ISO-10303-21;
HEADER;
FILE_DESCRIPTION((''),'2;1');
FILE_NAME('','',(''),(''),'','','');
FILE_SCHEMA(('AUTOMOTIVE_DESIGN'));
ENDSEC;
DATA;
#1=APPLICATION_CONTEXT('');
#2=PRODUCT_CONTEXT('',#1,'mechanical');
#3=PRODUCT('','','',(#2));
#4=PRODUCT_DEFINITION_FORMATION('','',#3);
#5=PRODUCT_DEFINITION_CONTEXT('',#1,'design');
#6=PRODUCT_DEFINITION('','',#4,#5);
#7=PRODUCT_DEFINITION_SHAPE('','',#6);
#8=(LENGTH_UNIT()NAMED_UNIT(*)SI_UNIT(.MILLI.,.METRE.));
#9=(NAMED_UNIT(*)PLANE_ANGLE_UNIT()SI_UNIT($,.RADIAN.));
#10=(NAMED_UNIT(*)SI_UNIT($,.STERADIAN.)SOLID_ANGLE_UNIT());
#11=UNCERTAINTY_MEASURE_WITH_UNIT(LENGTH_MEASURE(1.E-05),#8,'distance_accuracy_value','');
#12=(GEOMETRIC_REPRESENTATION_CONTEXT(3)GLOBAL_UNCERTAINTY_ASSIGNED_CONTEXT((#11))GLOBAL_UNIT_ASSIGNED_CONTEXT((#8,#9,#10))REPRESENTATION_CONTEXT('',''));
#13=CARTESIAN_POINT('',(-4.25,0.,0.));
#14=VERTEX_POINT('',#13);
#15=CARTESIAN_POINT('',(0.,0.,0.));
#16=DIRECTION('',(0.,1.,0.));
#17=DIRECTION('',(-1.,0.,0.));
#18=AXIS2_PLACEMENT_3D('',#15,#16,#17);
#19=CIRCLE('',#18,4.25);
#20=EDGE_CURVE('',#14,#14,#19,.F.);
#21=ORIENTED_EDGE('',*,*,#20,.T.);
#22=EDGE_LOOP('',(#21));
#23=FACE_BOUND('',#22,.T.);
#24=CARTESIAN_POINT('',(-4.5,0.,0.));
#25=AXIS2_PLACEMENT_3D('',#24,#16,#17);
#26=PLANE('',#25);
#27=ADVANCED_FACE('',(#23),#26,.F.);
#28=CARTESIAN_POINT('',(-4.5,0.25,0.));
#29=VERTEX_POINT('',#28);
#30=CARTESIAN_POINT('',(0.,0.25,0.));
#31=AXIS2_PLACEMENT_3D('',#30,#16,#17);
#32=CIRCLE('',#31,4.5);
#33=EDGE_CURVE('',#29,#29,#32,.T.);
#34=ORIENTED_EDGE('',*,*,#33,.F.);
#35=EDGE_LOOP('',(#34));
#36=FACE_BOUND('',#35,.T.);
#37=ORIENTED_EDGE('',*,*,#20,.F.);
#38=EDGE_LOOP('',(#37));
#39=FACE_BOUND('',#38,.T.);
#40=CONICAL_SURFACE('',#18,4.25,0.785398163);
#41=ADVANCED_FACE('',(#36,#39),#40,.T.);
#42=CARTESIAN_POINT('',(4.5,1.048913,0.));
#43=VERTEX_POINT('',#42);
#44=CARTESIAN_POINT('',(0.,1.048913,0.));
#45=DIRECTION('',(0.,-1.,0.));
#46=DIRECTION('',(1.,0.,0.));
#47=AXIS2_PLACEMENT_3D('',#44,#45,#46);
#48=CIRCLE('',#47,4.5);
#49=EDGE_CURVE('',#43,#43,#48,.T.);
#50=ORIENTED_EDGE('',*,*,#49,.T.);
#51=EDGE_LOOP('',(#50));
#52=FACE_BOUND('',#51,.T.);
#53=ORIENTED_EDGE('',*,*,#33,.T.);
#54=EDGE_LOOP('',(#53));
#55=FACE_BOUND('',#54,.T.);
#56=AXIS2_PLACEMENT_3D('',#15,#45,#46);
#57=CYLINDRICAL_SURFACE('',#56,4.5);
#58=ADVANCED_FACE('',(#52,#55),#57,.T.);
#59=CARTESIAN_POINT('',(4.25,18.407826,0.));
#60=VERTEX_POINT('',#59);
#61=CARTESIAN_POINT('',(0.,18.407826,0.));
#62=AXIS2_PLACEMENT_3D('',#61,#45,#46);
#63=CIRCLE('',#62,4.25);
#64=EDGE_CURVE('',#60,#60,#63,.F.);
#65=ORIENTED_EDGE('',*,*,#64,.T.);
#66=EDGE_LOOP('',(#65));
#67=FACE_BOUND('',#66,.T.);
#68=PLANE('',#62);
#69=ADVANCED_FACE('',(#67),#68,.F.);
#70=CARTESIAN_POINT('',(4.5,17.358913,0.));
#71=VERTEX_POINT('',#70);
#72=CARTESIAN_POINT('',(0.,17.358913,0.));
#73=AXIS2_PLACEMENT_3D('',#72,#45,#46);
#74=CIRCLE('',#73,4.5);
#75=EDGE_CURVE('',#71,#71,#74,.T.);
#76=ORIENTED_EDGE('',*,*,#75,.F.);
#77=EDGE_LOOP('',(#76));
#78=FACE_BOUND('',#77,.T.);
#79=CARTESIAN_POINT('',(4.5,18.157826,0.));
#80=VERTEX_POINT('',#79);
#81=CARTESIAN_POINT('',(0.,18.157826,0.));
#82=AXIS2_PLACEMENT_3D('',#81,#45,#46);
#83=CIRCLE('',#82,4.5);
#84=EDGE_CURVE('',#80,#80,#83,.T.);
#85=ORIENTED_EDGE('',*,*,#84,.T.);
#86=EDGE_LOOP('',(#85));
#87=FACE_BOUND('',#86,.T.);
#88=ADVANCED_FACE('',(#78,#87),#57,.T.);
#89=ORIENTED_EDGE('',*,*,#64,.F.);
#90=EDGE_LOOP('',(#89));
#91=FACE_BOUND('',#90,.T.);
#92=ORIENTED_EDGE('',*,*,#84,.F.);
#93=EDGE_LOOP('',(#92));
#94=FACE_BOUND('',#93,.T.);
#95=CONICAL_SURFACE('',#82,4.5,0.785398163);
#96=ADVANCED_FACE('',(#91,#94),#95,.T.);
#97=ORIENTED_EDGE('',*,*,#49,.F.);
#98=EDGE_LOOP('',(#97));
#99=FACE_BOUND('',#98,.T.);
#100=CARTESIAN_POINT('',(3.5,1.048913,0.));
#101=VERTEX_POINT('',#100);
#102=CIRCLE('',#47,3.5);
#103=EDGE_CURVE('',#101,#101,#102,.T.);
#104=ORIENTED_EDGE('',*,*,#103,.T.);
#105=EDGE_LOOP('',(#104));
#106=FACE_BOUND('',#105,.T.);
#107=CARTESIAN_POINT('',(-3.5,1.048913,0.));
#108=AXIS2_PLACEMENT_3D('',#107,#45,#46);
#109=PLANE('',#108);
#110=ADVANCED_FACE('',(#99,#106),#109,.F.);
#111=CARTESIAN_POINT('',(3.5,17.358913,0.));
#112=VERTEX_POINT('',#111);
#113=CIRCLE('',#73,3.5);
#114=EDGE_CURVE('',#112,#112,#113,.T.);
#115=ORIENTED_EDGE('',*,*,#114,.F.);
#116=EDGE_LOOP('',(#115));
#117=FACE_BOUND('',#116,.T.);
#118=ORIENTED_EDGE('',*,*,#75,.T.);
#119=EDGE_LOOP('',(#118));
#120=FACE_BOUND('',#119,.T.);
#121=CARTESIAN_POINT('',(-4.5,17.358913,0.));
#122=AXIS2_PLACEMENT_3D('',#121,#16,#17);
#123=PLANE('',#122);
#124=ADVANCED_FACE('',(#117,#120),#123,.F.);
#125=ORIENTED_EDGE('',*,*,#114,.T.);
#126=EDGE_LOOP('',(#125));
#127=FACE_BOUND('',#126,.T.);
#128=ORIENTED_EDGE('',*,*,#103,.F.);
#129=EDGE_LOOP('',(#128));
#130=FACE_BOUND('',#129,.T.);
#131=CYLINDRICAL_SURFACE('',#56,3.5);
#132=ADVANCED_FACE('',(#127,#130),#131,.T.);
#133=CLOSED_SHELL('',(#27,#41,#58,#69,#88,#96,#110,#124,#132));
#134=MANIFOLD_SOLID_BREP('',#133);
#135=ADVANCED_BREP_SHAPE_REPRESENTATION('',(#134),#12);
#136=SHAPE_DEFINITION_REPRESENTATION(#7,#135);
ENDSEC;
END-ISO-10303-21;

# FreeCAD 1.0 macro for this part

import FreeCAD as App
import Part
import Sketcher


def edges_at(feature, points):
    """Names of the edges that pass closest to the given points."""
    edges = feature.Shape.Edges
    near = lambda p: min(range(len(edges)), key=lambda i: edges[i].distToShape(Part.Vertex(*p))[0])
    return sorted({f"Edge{near(p) + 1}" for p in points})

doc = App.newDocument("Part")
params = doc.addObject("Spreadsheet::Sheet", "Params")
for row, (alias, value) in enumerate([
    ("sketch1_width", "1 mm"),
    ("sketch1_width2", "4.5 mm"),
    ("sketch1_height", "16.31 mm"),
    ("revolution_angle", "360 deg"),
    ("chamfer_size", "0.25 mm"),
], start=1):
    params.set(f"A{row}", alias)
    params.set(f"B{row}", "=" + value)
    params.setAlias(f"B{row}", alias)

body = doc.addObject("PartDesign::Body", "Body")

# Sketch on XY plane
sketch1 = body.newObject("Sketcher::SketchObject", "Sketch")
sketch1.AttachmentSupport = (doc.getObject("XY_Plane"), [""])
sketch1.MapMode = "FlatFace"
sketch1.addGeometry([
    Part.LineSegment(App.Vector(0, 18.407826, 0), App.Vector(-4.5, 18.407826, 0)),  # 0
    Part.LineSegment(App.Vector(-4.5, 18.407826, 0), App.Vector(-4.5, 17.358913, 0)),  # 1
    Part.LineSegment(App.Vector(-4.5, 17.358913, 0), App.Vector(-3.5, 17.358913, 0)),  # 2
    Part.LineSegment(App.Vector(-3.5, 17.358913, 0), App.Vector(-3.5, 1.048913, 0)),  # 3
    Part.LineSegment(App.Vector(-3.5, 1.048913, 0), App.Vector(-4.5, 1.048913, 0)),  # 4
    Part.LineSegment(App.Vector(-4.5, 1.048913, 0), App.Vector(-4.5, 0, 0)),  # 5
    Part.LineSegment(App.Vector(-4.5, 0, 0), App.Vector(0, 0, 0)),  # 6
    Part.LineSegment(App.Vector(0, 0, 0), App.Vector(0, 18.407826, 0)),  # 7
], False)
sketch1.addConstraint([
    Sketcher.Constraint("Coincident", 0, 2, 1, 1),
    Sketcher.Constraint("Coincident", 1, 2, 2, 1),
    Sketcher.Constraint("Coincident", 2, 2, 3, 1),
    Sketcher.Constraint("Coincident", 3, 2, 4, 1),
    Sketcher.Constraint("Coincident", 4, 2, 5, 1),
    Sketcher.Constraint("Coincident", 5, 2, 6, 1),
    Sketcher.Constraint("Coincident", 6, 2, 7, 1),
    Sketcher.Constraint("Coincident", 7, 2, 0, 1),
    Sketcher.Constraint("Horizontal", 0),
    Sketcher.Constraint("Vertical", 1),
    Sketcher.Constraint("Horizontal", 2),
    Sketcher.Constraint("Vertical", 3),
    Sketcher.Constraint("Horizontal", 4),
    Sketcher.Constraint("Vertical", 5),
    Sketcher.Constraint("Horizontal", 6),
    Sketcher.Constraint("Vertical", 7),
    Sketcher.Constraint("Coincident", 6, 2, -1, 1),
    Sketcher.Constraint("Vertical", 1, 2, 4, 2),
    Sketcher.Constraint("Equal", 1, 5),
    Sketcher.Constraint("DistanceX", 2, 1, 2, 2, 1.0),
    Sketcher.Constraint("DistanceX", 0, 2, 0, 1, 4.5),
    Sketcher.Constraint("DistanceY", 3, 2, 3, 1, 16.31),
    Sketcher.Constraint("DistanceY", 1, 2, 1, 1, 1.048913),
])
sketch1.setExpression("Constraints[19]", "Params.sketch1_width")
sketch1.setExpression("Constraints[20]", "Params.sketch1_width2")
sketch1.setExpression("Constraints[21]", "Params.sketch1_height")
revolution = body.newObject("PartDesign::Revolution", "Revolution")
revolution.Profile = sketch1
revolution.ReferenceAxis = (sketch1, ["V_Axis"])
revolution.setExpression("Angle", "Params.revolution_angle")
doc.recompute()

chamfer = body.newObject("PartDesign::Chamfer", "Chamfer")
chamfer.Base = (revolution, edges_at(revolution, [(-4.5, 0, 0), (-4.5, 18.408, 0)]))
chamfer.setExpression("Size", "Params.chamfer_size")

doc.recompute()
